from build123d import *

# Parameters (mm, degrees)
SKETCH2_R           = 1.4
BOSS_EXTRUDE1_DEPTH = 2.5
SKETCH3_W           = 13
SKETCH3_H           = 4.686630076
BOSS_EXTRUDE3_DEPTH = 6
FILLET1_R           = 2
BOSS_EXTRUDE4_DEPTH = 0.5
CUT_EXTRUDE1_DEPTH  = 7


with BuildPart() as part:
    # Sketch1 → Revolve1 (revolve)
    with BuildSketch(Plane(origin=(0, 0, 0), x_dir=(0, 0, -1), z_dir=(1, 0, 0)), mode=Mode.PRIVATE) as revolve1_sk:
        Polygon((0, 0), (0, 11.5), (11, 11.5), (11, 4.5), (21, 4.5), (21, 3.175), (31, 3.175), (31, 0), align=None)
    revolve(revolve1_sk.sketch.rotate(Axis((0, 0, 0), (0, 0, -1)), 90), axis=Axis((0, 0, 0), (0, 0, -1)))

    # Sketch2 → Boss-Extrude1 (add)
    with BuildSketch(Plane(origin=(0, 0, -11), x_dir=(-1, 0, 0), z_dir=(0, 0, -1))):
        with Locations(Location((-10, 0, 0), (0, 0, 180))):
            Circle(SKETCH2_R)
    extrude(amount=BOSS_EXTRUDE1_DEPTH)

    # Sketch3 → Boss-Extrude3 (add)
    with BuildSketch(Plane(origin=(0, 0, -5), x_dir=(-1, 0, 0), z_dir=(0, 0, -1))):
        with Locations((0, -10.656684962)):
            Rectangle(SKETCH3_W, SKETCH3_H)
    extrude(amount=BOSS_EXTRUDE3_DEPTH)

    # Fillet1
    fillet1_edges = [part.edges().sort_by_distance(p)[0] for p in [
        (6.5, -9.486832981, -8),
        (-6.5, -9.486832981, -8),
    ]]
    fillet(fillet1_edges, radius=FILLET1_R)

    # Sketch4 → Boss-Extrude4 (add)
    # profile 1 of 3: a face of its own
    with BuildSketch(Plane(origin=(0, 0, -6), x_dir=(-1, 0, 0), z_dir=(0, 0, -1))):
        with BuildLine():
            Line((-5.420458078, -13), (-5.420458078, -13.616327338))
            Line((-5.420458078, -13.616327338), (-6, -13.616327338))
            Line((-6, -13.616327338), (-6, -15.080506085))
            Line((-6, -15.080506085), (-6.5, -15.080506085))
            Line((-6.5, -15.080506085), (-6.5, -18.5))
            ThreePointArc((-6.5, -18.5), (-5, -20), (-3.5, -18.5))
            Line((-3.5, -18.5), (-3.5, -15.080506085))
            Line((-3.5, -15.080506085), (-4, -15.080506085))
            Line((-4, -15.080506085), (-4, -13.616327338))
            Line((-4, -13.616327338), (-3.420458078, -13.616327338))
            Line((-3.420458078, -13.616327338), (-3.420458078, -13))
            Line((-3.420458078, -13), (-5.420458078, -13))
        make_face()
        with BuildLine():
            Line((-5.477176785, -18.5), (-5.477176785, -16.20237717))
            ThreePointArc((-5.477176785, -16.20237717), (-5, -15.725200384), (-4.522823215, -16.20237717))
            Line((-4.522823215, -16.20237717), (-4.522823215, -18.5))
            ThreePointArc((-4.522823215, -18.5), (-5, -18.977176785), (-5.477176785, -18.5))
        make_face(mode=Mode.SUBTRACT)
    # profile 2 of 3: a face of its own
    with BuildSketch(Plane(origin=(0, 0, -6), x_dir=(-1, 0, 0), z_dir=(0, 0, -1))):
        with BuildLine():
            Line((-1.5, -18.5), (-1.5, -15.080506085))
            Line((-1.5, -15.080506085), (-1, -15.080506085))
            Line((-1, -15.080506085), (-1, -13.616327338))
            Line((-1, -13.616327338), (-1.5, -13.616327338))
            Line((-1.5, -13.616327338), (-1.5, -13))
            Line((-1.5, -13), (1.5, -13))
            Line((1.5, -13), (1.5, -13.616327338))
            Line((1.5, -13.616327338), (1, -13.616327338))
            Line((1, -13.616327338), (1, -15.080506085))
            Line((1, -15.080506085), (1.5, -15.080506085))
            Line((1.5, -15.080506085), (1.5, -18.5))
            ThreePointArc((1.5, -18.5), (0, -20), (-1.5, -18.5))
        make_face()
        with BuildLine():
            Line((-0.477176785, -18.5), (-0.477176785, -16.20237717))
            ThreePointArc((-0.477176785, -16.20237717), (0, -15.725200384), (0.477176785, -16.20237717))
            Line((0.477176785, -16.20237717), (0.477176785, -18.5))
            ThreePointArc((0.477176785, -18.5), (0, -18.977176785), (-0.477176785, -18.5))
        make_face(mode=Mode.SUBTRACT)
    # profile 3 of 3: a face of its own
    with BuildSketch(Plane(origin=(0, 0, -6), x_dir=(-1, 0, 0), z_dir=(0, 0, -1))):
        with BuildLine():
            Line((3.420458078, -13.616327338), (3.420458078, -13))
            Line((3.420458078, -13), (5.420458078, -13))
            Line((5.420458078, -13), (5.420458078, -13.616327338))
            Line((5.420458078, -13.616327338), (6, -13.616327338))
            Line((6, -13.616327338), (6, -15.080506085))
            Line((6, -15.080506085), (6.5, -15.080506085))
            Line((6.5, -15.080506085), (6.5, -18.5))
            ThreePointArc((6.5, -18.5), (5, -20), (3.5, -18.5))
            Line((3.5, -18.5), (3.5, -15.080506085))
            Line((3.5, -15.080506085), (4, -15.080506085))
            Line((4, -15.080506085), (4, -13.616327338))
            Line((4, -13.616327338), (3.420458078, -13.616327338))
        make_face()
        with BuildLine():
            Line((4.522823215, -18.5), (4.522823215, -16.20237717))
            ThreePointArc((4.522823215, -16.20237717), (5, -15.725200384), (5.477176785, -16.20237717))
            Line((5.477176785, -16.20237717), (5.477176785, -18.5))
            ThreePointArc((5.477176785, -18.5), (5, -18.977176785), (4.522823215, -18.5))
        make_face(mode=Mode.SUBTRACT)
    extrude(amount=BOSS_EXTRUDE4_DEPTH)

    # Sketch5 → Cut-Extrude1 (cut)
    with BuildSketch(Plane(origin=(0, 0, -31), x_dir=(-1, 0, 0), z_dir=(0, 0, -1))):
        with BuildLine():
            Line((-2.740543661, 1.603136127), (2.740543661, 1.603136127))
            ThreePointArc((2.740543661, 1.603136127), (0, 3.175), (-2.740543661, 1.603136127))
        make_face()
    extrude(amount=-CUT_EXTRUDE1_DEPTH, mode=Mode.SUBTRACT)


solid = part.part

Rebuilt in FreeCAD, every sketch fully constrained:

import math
import FreeCAD as App
import Part
import Sketcher

V = App.Vector
Q = App.Units.Quantity


def edges_at(feature, points):
    """Names of the edges that pass closest to the given points."""
    edges = feature.Shape.Edges
    near = lambda p: min(range(len(edges)), key=lambda i: edges[i].distToShape(Part.Vertex(*p))[0])
    return sorted({f"Edge{near(p) + 1}" for p in points})

doc = App.newDocument("Part")
params = doc.addObject("Spreadsheet::Sheet", "Params")
for row, (alias, value) in enumerate([
    ("sketch1_width", "7 mm"),
    ("sketch1_height", "31 mm"),
    ("sketch1_height2", "10 mm"),
    ("sketch1_width2", "11.5 mm"),
    ("revolution_angle", "360 deg"),
    ("sketch2_diameter", "2.8 mm"),
    ("pad1_length", "2.5 mm"),
    ("sketch3_width", "13 mm"),
    ("pad2_length", "6 mm"),
    ("fillet_radius", "2 mm"),
    ("sketch4_radius", "1.5 mm"),
    ("sketch4_width", "2 mm"),
    ("pad3_length", "0.5 mm"),
    ("pocket1_length", "7 mm"),
], start=1):
    params.set(f"A{row}", alias)
    params.set(f"B{row}", "=" + value)
    params.setAlias(f"B{row}", alias)

body = doc.addObject("PartDesign::Body", "Body")

# Sketch on YZ plane
sketch1 = body.newObject("Sketcher::SketchObject", "Sketch")
sketch1.AttachmentSupport = (doc.getObject("YZ_Plane"), [""])
sketch1.MapMode = "FlatFace"
sketch1.addGeometry(Part.LineSegment(V(11.5, 0, 0), V(0, 0, 0)), False)
sketch1.addGeometry(Part.LineSegment(V(0, 0, 0), V(0, -31, 0)), False)
sketch1.addGeometry(Part.LineSegment(V(0, -31, 0), V(3.2, -31, 0)), False)
sketch1.addGeometry(Part.LineSegment(V(3.2, -31, 0), V(3.2, -21, 0)), False)
sketch1.addGeometry(Part.LineSegment(V(3.2, -21, 0), V(4.5, -21, 0)), False)
sketch1.addGeometry(Part.LineSegment(V(4.5, -21, 0), V(4.5, -11, 0)), False)
sketch1.addGeometry(Part.LineSegment(V(4.5, -11, 0), V(11.5, -11, 0)), False)
sketch1.addGeometry(Part.LineSegment(V(11.5, -11, 0), V(11.5, 0, 0)), False)
sketch1.addConstraint(Sketcher.Constraint("Coincident", 0, 2, 1, 1))
sketch1.addConstraint(Sketcher.Constraint("Coincident", 1, 2, 2, 1))
sketch1.addConstraint(Sketcher.Constraint("Coincident", 2, 2, 3, 1))
sketch1.addConstraint(Sketcher.Constraint("Coincident", 3, 2, 4, 1))
sketch1.addConstraint(Sketcher.Constraint("Coincident", 4, 2, 5, 1))
sketch1.addConstraint(Sketcher.Constraint("Coincident", 5, 2, 6, 1))
sketch1.addConstraint(Sketcher.Constraint("Coincident", 6, 2, 7, 1))
sketch1.addConstraint(Sketcher.Constraint("Coincident", 7, 2, 0, 1))
sketch1.addConstraint(Sketcher.Constraint("Horizontal", 0))
sketch1.addConstraint(Sketcher.Constraint("Vertical", 1))
sketch1.addConstraint(Sketcher.Constraint("Horizontal", 2))
sketch1.addConstraint(Sketcher.Constraint("Vertical", 3))
sketch1.addConstraint(Sketcher.Constraint("Horizontal", 4))
sketch1.addConstraint(Sketcher.Constraint("Vertical", 5))
sketch1.addConstraint(Sketcher.Constraint("Horizontal", 6))
sketch1.addConstraint(Sketcher.Constraint("Vertical", 7))
sketch1.addConstraint(Sketcher.Constraint("Coincident", 0, 2, -1, 1))
sketch1.addConstraint(Sketcher.Constraint("Equal", 3, 5))
sketch1.addConstraint(Sketcher.Constraint("DistanceX", 6, 1, 6, 2, Q("7 mm")))
sketch1.addConstraint(Sketcher.Constraint("DistanceY", 1, 2, 1, 1, Q("31 mm")))
sketch1.addConstraint(Sketcher.Constraint("DistanceY", 3, 1, 3, 2, Q("10 mm")))
sketch1.addConstraint(Sketcher.Constraint("DistanceX", 0, 2, 0, 1, Q("11.5 mm")))
sketch1.addConstraint(Sketcher.Constraint("DistanceX", 2, 1, 2, 2, Q("3.175 mm")))
sketch1.setExpression("Constraints[18]", "Params.sketch1_width")
sketch1.setExpression("Constraints[19]", "Params.sketch1_height")
sketch1.setExpression("Constraints[20]", "Params.sketch1_height2")
sketch1.setExpression("Constraints[21]", "Params.sketch1_width2")
revolution = body.newObject("PartDesign::Revolution", "Revolution")
revolution.Profile = sketch1
revolution.ReferenceAxis = (sketch1, ["V_Axis"])
revolution.setExpression("Angle", "Params.revolution_angle")

# Sketch on XY plane
sketch2 = body.newObject("Sketcher::SketchObject", "Sketch001")
sketch2.AttachmentSupport = (doc.getObject("XY_Plane"), [""])
sketch2.MapMode = "FlatFace"
sketch2.AttachmentOffset = App.Placement(V(0, 0, -11), App.Rotation())
sketch2.addGeometry(Part.Circle(V(10, 0, 0), V(0, 0, 1), 1.4), False)
sketch2.addConstraint(Sketcher.Constraint("PointOnObject", 0, 3, -1))
sketch2.addConstraint(Sketcher.Constraint("Diameter", 0, Q("2.8 mm")))
sketch2.addConstraint(Sketcher.Constraint("DistanceX", -1, 1, 0, 3, Q("10 mm")))
sketch2.setExpression("Constraints[1]", "Params.sketch2_diameter")
pad1 = body.newObject("PartDesign::Pad", "Pad")
pad1.Profile = sketch2
pad1.setExpression("Length", "Params.pad1_length")
pad1.Reversed = True

# Sketch on XY plane
sketch3 = body.newObject("Sketcher::SketchObject", "Sketch002")
sketch3.AttachmentSupport = (doc.getObject("XY_Plane"), [""])
sketch3.MapMode = "FlatFace"
sketch3.AttachmentOffset = App.Placement(V(0, 0, -5), App.Rotation())
sketch3.addGeometry(Part.LineSegment(V(6.5, -8.3, 0), V(6.5, -13, 0)), False)
sketch3.addGeometry(Part.LineSegment(V(6.5, -13, 0), V(-6.5, -13, 0)), False)
sketch3.addGeometry(Part.LineSegment(V(-6.5, -13, 0), V(-6.5, -8.3, 0)), False)
sketch3.addGeometry(Part.LineSegment(V(-6.5, -8.3, 0), V(6.5, -8.3, 0)), False)
sketch3.addConstraint(Sketcher.Constraint("Coincident", 0, 2, 1, 1))
sketch3.addConstraint(Sketcher.Constraint("Coincident", 1, 2, 2, 1))
sketch3.addConstraint(Sketcher.Constraint("Coincident", 2, 2, 3, 1))
sketch3.addConstraint(Sketcher.Constraint("Coincident", 3, 2, 0, 1))
sketch3.addConstraint(Sketcher.Constraint("Vertical", 0))
sketch3.addConstraint(Sketcher.Constraint("Horizontal", 1))
sketch3.addConstraint(Sketcher.Constraint("Vertical", 2))
sketch3.addConstraint(Sketcher.Constraint("Horizontal", 3))
sketch3.addConstraint(Sketcher.Constraint("DistanceX", 1, 2, 1, 1, Q("13 mm")))
sketch3.addConstraint(Sketcher.Constraint("DistanceY", 0, 2, -1, 1, Q("13 mm")))
sketch3.addConstraint(Sketcher.Constraint("DistanceX", -1, 1, 0, 2, Q("6.5 mm")))
sketch3.addConstraint(Sketcher.Constraint("DistanceY", 0, 2, 0, 1, Q("4.68663 mm")))
sketch3.setExpression("Constraints[8]", "Params.sketch3_width")
pad2 = body.newObject("PartDesign::Pad", "Pad001")
pad2.Profile = sketch3
pad2.setExpression("Length", "Params.pad2_length")
pad2.Reversed = True
doc.recompute()

fillet = body.newObject("PartDesign::Fillet", "Fillet")
fillet.Base = (pad2, edges_at(pad2, [(6.5, -9.487, -8), (-6.5, -9.487, -8)]))
fillet.setExpression("Radius", "Params.fillet_radius")

# Sketch on XY plane
sketch4 = body.newObject("Sketcher::SketchObject", "Sketch003")
sketch4.AttachmentSupport = (doc.getObject("XY_Plane"), [""])
sketch4.MapMode = "FlatFace"
sketch4.AttachmentOffset = App.Placement(V(0, 0, -6), App.Rotation())
sketch4.addGeometry(Part.LineSegment(V(5.42, -13, 0), V(5.42, -13.62, 0)), False)
sketch4.addGeometry(Part.LineSegment(V(5.42, -13.62, 0), V(6, -13.62, 0)), False)
sketch4.addGeometry(Part.LineSegment(V(6, -13.62, 0), V(6, -15.08, 0)), False)
sketch4.addGeometry(Part.LineSegment(V(6, -15.08, 0), V(6.5, -15.08, 0)), False)
sketch4.addGeometry(Part.LineSegment(V(6.5, -15.08, 0), V(6.5, -18.5, 0)), False)
sketch4.addGeometry(Part.ArcOfCircle(Part.Circle(V(5, -18.5, 0), V(0, 0, 1), 1.5), math.radians(180), math.radians(360)), False)
sketch4.addGeometry(Part.LineSegment(V(3.5, -18.5, 0), V(3.5, -15.08, 0)), False)
sketch4.addGeometry(Part.LineSegment(V(3.5, -15.08, 0), V(4, -15.08, 0)), False)
sketch4.addGeometry(Part.LineSegment(V(4, -15.08, 0), V(4, -13.62, 0)), False)
sketch4.addGeometry(Part.LineSegment(V(4, -13.62, 0), V(3.42, -13.62, 0)), False)
sketch4.addGeometry(Part.LineSegment(V(3.42, -13.62, 0), V(3.42, -13, 0)), False)
sketch4.addGeometry(Part.LineSegment(V(3.42, -13, 0), V(5.42, -13, 0)), False)
sketch4.addGeometry(Part.ArcOfCircle(Part.Circle(V(5, -18.5, 0), V(0, 0, 1), 0.48), math.radians(180), math.radians(360)), False)
sketch4.addGeometry(Part.LineSegment(V(5.48, -18.5, 0), V(5.48, -16.2, 0)), False)
sketch4.addGeometry(Part.ArcOfCircle(Part.Circle(V(5, -16.2, 0), V(0, 0, 1), 0.48), math.radians(0), math.radians(180)), False)
sketch4.addGeometry(Part.LineSegment(V(4.52, -16.2, 0), V(4.52, -18.5, 0)), False)
sketch4.addGeometry(Part.LineSegment(V(1.5, -15.08, 0), V(1.5, -18.5, 0)), False)
sketch4.addGeometry(Part.ArcOfCircle(Part.Circle(V(0, -18.5, 0), V(0, 0, 1), 1.5), math.radians(180), math.radians(360)), False)
sketch4.addGeometry(Part.LineSegment(V(-1.5, -18.5, 0), V(-1.5, -15.08, 0)), False)
sketch4.addGeometry(Part.LineSegment(V(-1.5, -15.08, 0), V(-1, -15.08, 0)), False)
sketch4.addGeometry(Part.LineSegment(V(-1, -15.08, 0), V(-1, -13.62, 0)), False)
sketch4.addGeometry(Part.LineSegment(V(-1, -13.62, 0), V(-1.5, -13.62, 0)), False)
sketch4.addGeometry(Part.LineSegment(V(-1.5, -13.62, 0), V(-1.5, -13, 0)), False)
sketch4.addGeometry(Part.LineSegment(V(-1.5, -13, 0), V(1.5, -13, 0)), False)
sketch4.addGeometry(Part.LineSegment(V(1.5, -13, 0), V(1.5, -13.62, 0)), False)
sketch4.addGeometry(Part.LineSegment(V(1.5, -13.62, 0), V(1, -13.62, 0)), False)
sketch4.addGeometry(Part.LineSegment(V(1, -13.62, 0), V(1, -15.08, 0)), False)
sketch4.addGeometry(Part.LineSegment(V(1, -15.08, 0), V(1.5, -15.08, 0)), False)
sketch4.addGeometry(Part.LineSegment(V(0.48, -18.5, 0), V(0.48, -16.2, 0)), False)
sketch4.addGeometry(Part.ArcOfCircle(Part.Circle(V(0, -16.2, 0), V(0, 0, 1), 0.48), math.radians(0), math.radians(180)), False)
sketch4.addGeometry(Part.LineSegment(V(-0.48, -16.2, 0), V(-0.48, -18.5, 0)), False)
sketch4.addGeometry(Part.ArcOfCircle(Part.Circle(V(0, -18.5, 0), V(0, 0, 1), 0.48), math.radians(180), math.radians(360)), False)
sketch4.addGeometry(Part.LineSegment(V(-3.42, -13, 0), V(-3.42, -13.62, 0)), False)
sketch4.addGeometry(Part.LineSegment(V(-3.42, -13.62, 0), V(-4, -13.62, 0)), False)
sketch4.addGeometry(Part.LineSegment(V(-4, -13.62, 0), V(-4, -15.08, 0)), False)
sketch4.addGeometry(Part.LineSegment(V(-4, -15.08, 0), V(-3.5, -15.08, 0)), False)
sketch4.addGeometry(Part.LineSegment(V(-3.5, -15.08, 0), V(-3.5, -18.5, 0)), False)
sketch4.addGeometry(Part.ArcOfCircle(Part.Circle(V(-5, -18.5, 0), V(0, 0, 1), 1.5), math.radians(180), math.radians(360)), False)
sketch4.addGeometry(Part.LineSegment(V(-6.5, -18.5, 0), V(-6.5, -15.08, 0)), False)
sketch4.addGeometry(Part.LineSegment(V(-6.5, -15.08, 0), V(-6, -15.08, 0)), False)
sketch4.addGeometry(Part.LineSegment(V(-6, -15.08, 0), V(-6, -13.62, 0)), False)
sketch4.addGeometry(Part.LineSegment(V(-6, -13.62, 0), V(-5.42, -13.62, 0)), False)
sketch4.addGeometry(Part.LineSegment(V(-5.42, -13.62, 0), V(-5.42, -13, 0)), False)
sketch4.addGeometry(Part.LineSegment(V(-5.42, -13, 0), V(-3.42, -13, 0)), False)
sketch4.addGeometry(Part.LineSegment(V(-4.52, -18.5, 0), V(-4.52, -16.2, 0)), False)
sketch4.addGeometry(Part.ArcOfCircle(Part.Circle(V(-5, -16.2, 0), V(0, 0, 1), 0.48), math.radians(0), math.radians(180)), False)
sketch4.addGeometry(Part.LineSegment(V(-5.48, -16.2, 0), V(-5.48, -18.5, 0)), False)
sketch4.addGeometry(Part.ArcOfCircle(Part.Circle(V(-5, -18.5, 0), V(0, 0, 1), 0.48), math.radians(180), math.radians(360)), False)
sketch4.addConstraint(Sketcher.Constraint("Coincident", 0, 2, 1, 1))
sketch4.addConstraint(Sketcher.Constraint("Coincident", 1, 2, 2, 1))
sketch4.addConstraint(Sketcher.Constraint("Coincident", 2, 2, 3, 1))
sketch4.addConstraint(Sketcher.Constraint("Coincident", 3, 2, 4, 1))
sketch4.addConstraint(Sketcher.Constraint("Tangent", 4, 2, 5, 2))
sketch4.addConstraint(Sketcher.Constraint("Tangent", 5, 1, 6, 1))
sketch4.addConstraint(Sketcher.Constraint("Coincident", 6, 2, 7, 1))
sketch4.addConstraint(Sketcher.Constraint("Coincident", 7, 2, 8, 1))
sketch4.addConstraint(Sketcher.Constraint("Coincident", 8, 2, 9, 1))
sketch4.addConstraint(Sketcher.Constraint("Coincident", 9, 2, 10, 1))
sketch4.addConstraint(Sketcher.Constraint("Coincident", 10, 2, 11, 1))
sketch4.addConstraint(Sketcher.Constraint("Coincident", 11, 2, 0, 1))
sketch4.addConstraint(Sketcher.Constraint("Tangent", 12, 2, 13, 1))
sketch4.addConstraint(Sketcher.Constraint("Tangent", 13, 2, 14, 1))
sketch4.addConstraint(Sketcher.Constraint("Tangent", 14, 2, 15, 1))
sketch4.addConstraint(Sketcher.Constraint("Tangent", 15, 2, 12, 1))
sketch4.addConstraint(Sketcher.Constraint("Tangent", 16, 2, 17, 2))
sketch4.addConstraint(Sketcher.Constraint("Tangent", 17, 1, 18, 1))
sketch4.addConstraint(Sketcher.Constraint("Coincident", 18, 2, 19, 1))
sketch4.addConstraint(Sketcher.Constraint("Coincident", 19, 2, 20, 1))
sketch4.addConstraint(Sketcher.Constraint("Coincident", 20, 2, 21, 1))
sketch4.addConstraint(Sketcher.Constraint("Coincident", 21, 2, 22, 1))
sketch4.addConstraint(Sketcher.Constraint("Coincident", 22, 2, 23, 1))
sketch4.addConstraint(Sketcher.Constraint("Coincident", 23, 2, 24, 1))
sketch4.addConstraint(Sketcher.Constraint("Coincident", 24, 2, 25, 1))
sketch4.addConstraint(Sketcher.Constraint("Coincident", 25, 2, 26, 1))
sketch4.addConstraint(Sketcher.Constraint("Coincident", 26, 2, 27, 1))
sketch4.addConstraint(Sketcher.Constraint("Coincident", 27, 2, 16, 1))
sketch4.addConstraint(Sketcher.Constraint("Tangent", 28, 2, 29, 1))
sketch4.addConstraint(Sketcher.Constraint("Tangent", 29, 2, 30, 1))
sketch4.addConstraint(Sketcher.Constraint("Tangent", 30, 2, 31, 1))
sketch4.addConstraint(Sketcher.Constraint("Tangent", 31, 2, 28, 1))
sketch4.addConstraint(Sketcher.Constraint("Coincident", 32, 2, 33, 1))
sketch4.addConstraint(Sketcher.Constraint("Coincident", 33, 2, 34, 1))
sketch4.addConstraint(Sketcher.Constraint("Coincident", 34, 2, 35, 1))
sketch4.addConstraint(Sketcher.Constraint("Coincident", 35, 2, 36, 1))
sketch4.addConstraint(Sketcher.Constraint("Tangent", 36, 2, 37, 2))
sketch4.addConstraint(Sketcher.Constraint("Tangent", 37, 1, 38, 1))
sketch4.addConstraint(Sketcher.Constraint("Coincident", 38, 2, 39, 1))
sketch4.addConstraint(Sketcher.Constraint("Coincident", 39, 2, 40, 1))
sketch4.addConstraint(Sketcher.Constraint("Coincident", 40, 2, 41, 1))
sketch4.addConstraint(Sketcher.Constraint("Coincident", 41, 2, 42, 1))
sketch4.addConstraint(Sketcher.Constraint("Coincident", 42, 2, 43, 1))
sketch4.addConstraint(Sketcher.Constraint("Coincident", 43, 2, 32, 1))
sketch4.addConstraint(Sketcher.Constraint("Tangent", 44, 2, 45, 1))
sketch4.addConstraint(Sketcher.Constraint("Tangent", 45, 2, 46, 1))
sketch4.addConstraint(Sketcher.Constraint("Tangent", 46, 2, 47, 1))
sketch4.addConstraint(Sketcher.Constraint("Tangent", 47, 2, 44, 1))
sketch4.addConstraint(Sketcher.Constraint("Vertical", 0))
sketch4.addConstraint(Sketcher.Constraint("Horizontal", 1))
sketch4.addConstraint(Sketcher.Constraint("Vertical", 2))
sketch4.addConstraint(Sketcher.Constraint("Horizontal", 3))
sketch4.addConstraint(Sketcher.Constraint("Vertical", 4))
sketch4.addConstraint(Sketcher.Constraint("Vertical", 6))
sketch4.addConstraint(Sketcher.Constraint("Horizontal", 7))
sketch4.addConstraint(Sketcher.Constraint("Vertical", 8))
sketch4.addConstraint(Sketcher.Constraint("Horizontal", 9))
sketch4.addConstraint(Sketcher.Constraint("Vertical", 10))
sketch4.addConstraint(Sketcher.Constraint("Horizontal", 11))
sketch4.addConstraint(Sketcher.Constraint("Vertical", 13))
sketch4.addConstraint(Sketcher.Constraint("Vertical", 15))
sketch4.addConstraint(Sketcher.Constraint("Vertical", 16))
sketch4.addConstraint(Sketcher.Constraint("Vertical", 18))
sketch4.addConstraint(Sketcher.Constraint("Horizontal", 19))
sketch4.addConstraint(Sketcher.Constraint("Vertical", 20))
sketch4.addConstraint(Sketcher.Constraint("Horizontal", 21))
sketch4.addConstraint(Sketcher.Constraint("Vertical", 22))
sketch4.addConstraint(Sketcher.Constraint("Horizontal", 23))
sketch4.addConstraint(Sketcher.Constraint("Vertical", 24))
sketch4.addConstraint(Sketcher.Constraint("Horizontal", 25))
sketch4.addConstraint(Sketcher.Constraint("Vertical", 26))
sketch4.addConstraint(Sketcher.Constraint("Horizontal", 27))
sketch4.addConstraint(Sketcher.Constraint("Vertical", 28))
sketch4.addConstraint(Sketcher.Constraint("Vertical", 30))
sketch4.addConstraint(Sketcher.Constraint("Vertical", 32))
sketch4.addConstraint(Sketcher.Constraint("Horizontal", 33))
sketch4.addConstraint(Sketcher.Constraint("Vertical", 34))
sketch4.addConstraint(Sketcher.Constraint("Horizontal", 35))
sketch4.addConstraint(Sketcher.Constraint("Vertical", 36))
sketch4.addConstraint(Sketcher.Constraint("Vertical", 38))
sketch4.addConstraint(Sketcher.Constraint("Horizontal", 39))
sketch4.addConstraint(Sketcher.Constraint("Vertical", 40))
sketch4.addConstraint(Sketcher.Constraint("Horizontal", 41))
sketch4.addConstraint(Sketcher.Constraint("Vertical", 42))
sketch4.addConstraint(Sketcher.Constraint("Horizontal", 43))
sketch4.addConstraint(Sketcher.Constraint("Vertical", 44))
sketch4.addConstraint(Sketcher.Constraint("Vertical", 46))
sketch4.addConstraint(Sketcher.Constraint("Coincident", 12, 3, 5, 3))
sketch4.addConstraint(Sketcher.Constraint("Coincident", 31, 3, 17, 3))
sketch4.addConstraint(Sketcher.Constraint("Coincident", 47, 3, 37, 3))
sketch4.addConstraint(Sketcher.Constraint("Equal", 5, 17))
sketch4.addConstraint(Sketcher.Constraint("Equal", 14, 29))
sketch4.addConstraint(Sketcher.Constraint("Equal", 17, 37))
sketch4.addConstraint(Sketcher.Constraint("Equal", 31, 45))
sketch4.addConstraint(Sketcher.Constraint("Symmetric", 5, 3, 37, 3, -2))
sketch4.addConstraint(Sketcher.Constraint("Symmetric", 21, 2, 24, 2, -2))
sketch4.addConstraint(Sketcher.Constraint("Symmetric", 19, 2, 26, 2, -2))
sketch4.addConstraint(Sketcher.Constraint("Symmetric", 9, 2, 32, 2, -2))
sketch4.addConstraint(Sketcher.Constraint("Symmetric", 7, 2, 34, 2, -2))
sketch4.addConstraint(Sketcher.Constraint("Symmetric", 2, 2, 39, 2, -2))
sketch4.addConstraint(Sketcher.Constraint("Symmetric", 0, 2, 41, 2, -2))
sketch4.addConstraint(Sketcher.Constraint("PointOnObject", 17, 3, -2))
sketch4.addConstraint(Sketcher.Constraint("Horizontal", 12, 3, 17, 3))
sketch4.addConstraint(Sketcher.Constraint("Horizontal", 14, 3, 29, 3))
sketch4.addConstraint(Sketcher.Constraint("Horizontal", 29, 3, 45, 3))
sketch4.addConstraint(Sketcher.Constraint("Horizontal", 3, 2, 6, 2))
sketch4.addConstraint(Sketcher.Constraint("Horizontal", 1, 2, 8, 2))
sketch4.addConstraint(Sketcher.Constraint("Horizontal", 7, 2, 18, 2))
sketch4.addConstraint(Sketcher.Constraint("Horizontal", 9, 2, 20, 2))
sketch4.addConstraint(Sketcher.Constraint("Horizontal", 11, 2, 22, 2))
sketch4.addConstraint(Sketcher.Constraint("Horizontal", 23, 2, 42, 2))
sketch4.addConstraint(Sketcher.Constraint("Vertical", 18, 2, 21, 2))
sketch4.addConstraint(Sketcher.Constraint("Equal", 3, 7))
sketch4.addConstraint(Sketcher.Constraint("Equal", 1, 9))
sketch4.addConstraint(Sketcher.Constraint("Equal", 7, 19))
sketch4.addConstraint(Sketcher.Constraint("Radius", 5, Q("1.5 mm")))
sketch4.addConstraint(Sketcher.Constraint("DistanceX", 11, 1, 11, 2, Q("2 mm")))
sketch4.addConstraint(Sketcher.Constraint("DistanceX", -1, 1, 5, 3, Q("5 mm")))
sketch4.addConstraint(Sketcher.Constraint("DistanceY", 10, 2, -1, 1, Q("13 mm")))
sketch4.addConstraint(Sketcher.Constraint("DistanceY", 5, 3, -1, 1, Q("18.5 mm")))
sketch4.addConstraint(Sketcher.Constraint("Radius", 12, Q("0.477177 mm")))
sketch4.addConstraint(Sketcher.Constraint("DistanceX", 1, 1, 1, 2, Q("0.579542 mm")))
sketch4.addConstraint(Sketcher.Constraint("DistanceY", 2, 2, 2, 1, Q("1.464179 mm")))
sketch4.addConstraint(Sketcher.Constraint("DistanceY", 0, 2, 0, 1, Q("0.616327 mm")))
sketch4.addConstraint(Sketcher.Constraint("DistanceY", 13, 1, 13, 2, Q("2.297623 mm")))
sketch4.setExpression("Constraints[115]", "Params.sketch4_radius")
sketch4.setExpression("Constraints[116]", "Params.sketch4_width")
pad3 = body.newObject("PartDesign::Pad", "Pad002")
pad3.Profile = sketch4
pad3.setExpression("Length", "Params.pad3_length")
pad3.Reversed = True

# Sketch on XY plane
sketch5 = body.newObject("Sketcher::SketchObject", "Sketch004")
sketch5.AttachmentSupport = (doc.getObject("XY_Plane"), [""])
sketch5.MapMode = "FlatFace"
sketch5.AttachmentOffset = App.Placement(V(0, 0, -31), App.Rotation())
sketch5.addGeometry(Part.LineSegment(V(2.7, 1.6, 0), V(-2.7, 1.6, 0)), False)
sketch5.addGeometry(Part.ArcOfCircle(Part.Circle(V(0, 0, 0), V(0, 0, 1), 3.2), math.radians(30), math.radians(150)), False)
sketch5.addConstraint(Sketcher.Constraint("Coincident", 0, 1, 1, 1))
sketch5.addConstraint(Sketcher.Constraint("Coincident", 1, 2, 0, 2))
sketch5.addConstraint(Sketcher.Constraint("Horizontal", 0))
sketch5.addConstraint(Sketcher.Constraint("Coincident", 1, 3, -1, 1))
sketch5.addConstraint(Sketcher.Constraint("Radius", 1, Q("3.175 mm")))
sketch5.addConstraint(Sketcher.Constraint("DistanceX", 0, 2, 0, 1, Q("5.481087 mm")))
pocket1 = body.newObject("PartDesign::Pocket", "Pocket")
pocket1.Profile = sketch5
pocket1.setExpression("Length", "Params.pocket1_length")
pocket1.Reversed = True

doc.recompute()
